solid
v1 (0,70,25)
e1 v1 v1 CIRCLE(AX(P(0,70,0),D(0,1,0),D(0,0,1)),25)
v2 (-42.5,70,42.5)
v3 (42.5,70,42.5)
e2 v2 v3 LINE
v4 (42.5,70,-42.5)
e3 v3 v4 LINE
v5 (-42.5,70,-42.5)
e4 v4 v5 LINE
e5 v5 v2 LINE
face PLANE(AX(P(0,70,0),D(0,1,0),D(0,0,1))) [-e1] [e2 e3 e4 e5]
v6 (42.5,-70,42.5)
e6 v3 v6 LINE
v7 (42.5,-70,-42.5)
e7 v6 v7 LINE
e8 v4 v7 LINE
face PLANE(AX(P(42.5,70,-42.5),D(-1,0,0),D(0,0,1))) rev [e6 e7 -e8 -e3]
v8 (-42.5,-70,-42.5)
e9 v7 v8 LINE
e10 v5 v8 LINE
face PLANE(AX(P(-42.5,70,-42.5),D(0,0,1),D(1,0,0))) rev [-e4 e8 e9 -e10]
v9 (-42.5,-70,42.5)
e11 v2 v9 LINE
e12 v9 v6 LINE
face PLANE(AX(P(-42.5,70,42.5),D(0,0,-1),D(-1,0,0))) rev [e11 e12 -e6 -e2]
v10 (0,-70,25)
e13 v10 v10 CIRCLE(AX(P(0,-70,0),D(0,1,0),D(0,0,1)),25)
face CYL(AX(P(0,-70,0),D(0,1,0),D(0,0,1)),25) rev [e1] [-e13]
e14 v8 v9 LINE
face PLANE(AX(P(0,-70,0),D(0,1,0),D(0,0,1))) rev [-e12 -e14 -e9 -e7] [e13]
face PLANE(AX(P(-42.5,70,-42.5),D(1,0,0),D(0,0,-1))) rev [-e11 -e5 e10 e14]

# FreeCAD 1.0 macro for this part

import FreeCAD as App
import Part
import Sketcher

V = App.Vector
Q = App.Units.Quantity

doc = App.newDocument("Part")
body = doc.addObject("PartDesign::Body", "Body")

sketch1 = body.newObject("Sketcher::SketchObject", "Sketch")
sketch1.AttachmentSupport = (doc.getObject("XZ_Plane"), [""])
sketch1.MapMode = "FlatFace"
sketch1.addGeometry([
    Part.LineSegment(V(-42, -42, 0), V(-42, 42, 0)),
    Part.LineSegment(V(-42, 42, 0), V(42, 42, 0)),
    Part.LineSegment(V(42, 42, 0), V(42, -42, 0)),
    Part.LineSegment(V(42, -42, 0), V(-42, -42, 0)),
], False)
sketch1.addConstraint([
    Sketcher.Constraint("Coincident", 0, 2, 1, 1),
    Sketcher.Constraint("Coincident", 1, 2, 2, 1),
    Sketcher.Constraint("Coincident", 2, 2, 3, 1),
    Sketcher.Constraint("Coincident", 3, 2, 0, 1),
    Sketcher.Constraint("Vertical", 0),
    Sketcher.Constraint("Horizontal", 1),
    Sketcher.Constraint("Vertical", 2),
    Sketcher.Constraint("Horizontal", 3),
    Sketcher.Constraint("Symmetric", 0, 2, 2, 2, -1, 1),
    Sketcher.Constraint("Equal", 3, 0),
    Sketcher.Constraint("DistanceX", 1, 1, 1, 2, Q("85 mm")),
])
pad1 = body.newObject("PartDesign::Pad", "Pad")
pad1.Profile = sketch1
pad1.Length = 140
pad1.Midplane = True

sketch2 = body.newObject("Sketcher::SketchObject", "Sketch001")
sketch2.AttachmentSupport = (doc.getObject("XZ_Plane"), [""])
sketch2.MapMode = "FlatFace"
sketch2.AttachmentOffset = App.Placement(V(0, 0, -70), App.Rotation())
sketch2.addGeometry(Part.Circle(V(0, 0, 0), V(0, 0, 1), 25), False)
sketch2.addConstraint([
    Sketcher.Constraint("Coincident", 0, 3, -1, 1),
    Sketcher.Constraint("Diameter", 0, Q("50 mm")),
])
pocket1 = body.newObject("PartDesign::Pocket", "Pocket")
pocket1.Profile = sketch2
pocket1.Length = 140
pocket1.Reversed = True

doc.recompute()
